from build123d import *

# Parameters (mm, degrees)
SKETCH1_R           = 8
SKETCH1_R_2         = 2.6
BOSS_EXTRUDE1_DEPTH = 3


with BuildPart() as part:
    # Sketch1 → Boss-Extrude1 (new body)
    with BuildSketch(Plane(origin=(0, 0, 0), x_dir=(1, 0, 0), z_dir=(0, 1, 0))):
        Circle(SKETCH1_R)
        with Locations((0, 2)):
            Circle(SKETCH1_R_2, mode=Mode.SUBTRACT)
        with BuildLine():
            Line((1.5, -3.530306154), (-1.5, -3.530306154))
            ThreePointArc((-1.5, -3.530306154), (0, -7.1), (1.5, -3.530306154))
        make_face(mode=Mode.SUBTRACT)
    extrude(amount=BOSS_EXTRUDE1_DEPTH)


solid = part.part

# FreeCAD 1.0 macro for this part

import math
import FreeCAD as App
import Part
import Sketcher
from FreeCAD import Vector

doc = App.newDocument("Part")
body = doc.addObject("PartDesign::Body", "Body")

# Sketch on XZ plane
sketch1 = body.newObject("Sketcher::SketchObject", "Sketch")
sketch1.AttachmentSupport = (doc.getObject("XZ_Plane"), [""])
sketch1.MapMode = "FlatFace"
sketch1.addGeometry(Part.Circle(Vector(0, 0, 0), Vector(0, 0, 1), 8), False)
sketch1.addGeometry(Part.LineSegment(Vector(-1.5, 3.5, 0), Vector(1.5, 3.5, 0)), False)
sketch1.addGeometry(Part.ArcOfCircle(Part.Circle(Vector(0, 5, 0), Vector(0, 0, 1), 2.1), math.radians(-44), math.radians(224)), False)
sketch1.addGeometry(Part.Circle(Vector(0, -2, 0), Vector(0, 0, 1), 2.6), False)
sketch1.addConstraint(Sketcher.Constraint("Coincident", 1, 1, 2, 2))
sketch1.addConstraint(Sketcher.Constraint("Coincident", 2, 1, 1, 2))
sketch1.addConstraint(Sketcher.Constraint("Horizontal", 1))
sketch1.addConstraint(Sketcher.Constraint("Coincident", 0, 3, -1, 1))
sketch1.addConstraint(Sketcher.Constraint("PointOnObject", 2, 3, -2))
sketch1.addConstraint(Sketcher.Constraint("PointOnObject", 3, 3, -2))
sketch1.addConstraint(Sketcher.Constraint("Diameter", 0, 16.0))
sketch1.addConstraint(Sketcher.Constraint("Diameter", 3, 5.2))
sketch1.addConstraint(Sketcher.Constraint("Radius", 2, 2.1))
sketch1.addConstraint(Sketcher.Constraint("DistanceX", 1, 1, 1, 2, 3.0))
sketch1.addConstraint(Sketcher.Constraint("DistanceY", -1, 1, 2, 3, 5.0))
sketch1.addConstraint(Sketcher.Constraint("DistanceY", 3, 3, -1, 1, 2.0))
pad1 = body.newObject("PartDesign::Pad", "Pad")
pad1.Profile = sketch1
pad1.Length = 3
pad1.Reversed = True

doc.recompute()
